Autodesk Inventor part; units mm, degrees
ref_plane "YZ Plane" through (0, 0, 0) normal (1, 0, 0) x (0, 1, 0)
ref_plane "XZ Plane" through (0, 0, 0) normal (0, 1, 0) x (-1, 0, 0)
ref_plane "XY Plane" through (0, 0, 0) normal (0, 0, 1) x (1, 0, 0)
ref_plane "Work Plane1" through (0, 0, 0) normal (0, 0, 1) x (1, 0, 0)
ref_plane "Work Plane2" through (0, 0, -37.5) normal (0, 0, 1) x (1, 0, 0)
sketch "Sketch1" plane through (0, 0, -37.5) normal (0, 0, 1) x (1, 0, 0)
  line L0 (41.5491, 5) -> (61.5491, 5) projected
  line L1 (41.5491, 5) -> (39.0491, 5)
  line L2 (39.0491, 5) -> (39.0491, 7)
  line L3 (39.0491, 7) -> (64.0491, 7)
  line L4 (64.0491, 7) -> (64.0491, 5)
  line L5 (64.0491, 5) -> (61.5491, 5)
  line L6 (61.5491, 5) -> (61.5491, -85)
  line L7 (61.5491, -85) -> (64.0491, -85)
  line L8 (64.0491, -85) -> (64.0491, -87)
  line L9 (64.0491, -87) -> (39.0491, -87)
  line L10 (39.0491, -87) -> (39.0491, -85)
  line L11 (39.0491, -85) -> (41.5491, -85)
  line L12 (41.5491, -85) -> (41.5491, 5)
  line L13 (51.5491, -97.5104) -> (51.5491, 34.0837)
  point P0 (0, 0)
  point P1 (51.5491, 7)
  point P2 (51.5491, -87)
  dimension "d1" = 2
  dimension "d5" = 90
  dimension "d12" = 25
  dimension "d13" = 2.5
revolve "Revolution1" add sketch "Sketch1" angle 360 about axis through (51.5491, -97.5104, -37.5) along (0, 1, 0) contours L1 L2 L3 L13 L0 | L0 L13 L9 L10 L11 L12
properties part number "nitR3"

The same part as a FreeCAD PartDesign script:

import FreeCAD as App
import Part
import Sketcher

doc = App.newDocument("Part")
params = doc.addObject("Spreadsheet::Sheet", "Params")
for row, (alias, value) in enumerate([
    ("sketch1_height", "90 mm"),
    ("sketch1_height2", "2 mm"),
    ("sketch1_width", "2.5 mm"),
    ("sketch1_width2", "12.5 mm"),
    ("revolution_angle", "360 deg"),
], start=1):
    params.set(f"A{row}", alias)
    params.set(f"B{row}", "=" + value)
    params.setAlias(f"B{row}", alias)

body = doc.addObject("PartDesign::Body", "Body")

# Sketch on XY plane
sketch1 = doc.addObject("Sketcher::SketchObject", "Sketch")
body.addObject(sketch1)
sketch1.AttachmentSupport = (doc.XY_Plane, [""])
sketch1.MapMode = "FlatFace"
sketch1.AttachmentOffset = App.Placement(App.Vector(0, 0, -37.5), App.Rotation())
sketch1.addGeometry([
    Part.LineSegment(App.Vector(39.0491, 5, 0), App.Vector(41.5491, 5, 0)),  # 0
    Part.LineSegment(App.Vector(41.5491, 5, 0), App.Vector(41.5491, -85, 0)),  # 1
    Part.LineSegment(App.Vector(41.5491, -85, 0), App.Vector(39.0491, -85, 0)),  # 2
    Part.LineSegment(App.Vector(39.0491, -85, 0), App.Vector(39.0491, -87, 0)),  # 3
    Part.LineSegment(App.Vector(39.0491, -87, 0), App.Vector(51.5491, -87, 0)),  # 4
    Part.LineSegment(App.Vector(51.5491, -87, 0), App.Vector(51.5491, 7, 0)),  # 5
    Part.LineSegment(App.Vector(51.5491, 7, 0), App.Vector(39.0491, 7, 0)),  # 6
    Part.LineSegment(App.Vector(39.0491, 7, 0), App.Vector(39.0491, 5, 0)),  # 7
], False)
sketch1.addGeometry(Part.LineSegment(App.Vector(51.5491, -87, 0), App.Vector(51.5491, 7, 0)), True)  # axis
sketch1.addConstraint([
    Sketcher.Constraint("Coincident", 0, 2, 1, 1),
    Sketcher.Constraint("Coincident", 1, 2, 2, 1),
    Sketcher.Constraint("Coincident", 2, 2, 3, 1),
    Sketcher.Constraint("Coincident", 3, 2, 4, 1),
    Sketcher.Constraint("Coincident", 4, 2, 5, 1),
    Sketcher.Constraint("Coincident", 5, 2, 6, 1),
    Sketcher.Constraint("Coincident", 6, 2, 7, 1),
    Sketcher.Constraint("Coincident", 7, 2, 0, 1),
    Sketcher.Constraint("Horizontal", 0),
    Sketcher.Constraint("Vertical", 1),
    Sketcher.Constraint("Horizontal", 2),
    Sketcher.Constraint("Vertical", 3),
    Sketcher.Constraint("Horizontal", 4),
    Sketcher.Constraint("Vertical", 5),
    Sketcher.Constraint("Horizontal", 6),
    Sketcher.Constraint("Vertical", 7),
    Sketcher.Constraint("Vertical", 8),
    Sketcher.Constraint("Coincident", 8, 1, 4, 2),
    Sketcher.Constraint("Horizontal", 6, 2, 8, 2),
    Sketcher.Constraint("Vertical", 3, 2, 6, 2),
    Sketcher.Constraint("Equal", 3, 7),
    Sketcher.Constraint("DistanceY", 1, 2, 1, 1, 90.0),
    Sketcher.Constraint("DistanceY", 3, 2, 3, 1, 2.0),
    Sketcher.Constraint("DistanceX", 0, 1, 0, 2, 2.5),
    Sketcher.Constraint("DistanceX", 4, 1, 4, 2, 12.5),
    Sketcher.Constraint("DistanceY", -1, 1, 0, 2, 5.0),
    Sketcher.Constraint("DistanceX", -1, 1, 0, 2, 41.549),
])
sketch1.setExpression("Constraints[21]", "Params.sketch1_height")
sketch1.setExpression("Constraints[22]", "Params.sketch1_height2")
sketch1.setExpression("Constraints[23]", "Params.sketch1_width")
sketch1.setExpression("Constraints[24]", "Params.sketch1_width2")
revolution = doc.addObject("PartDesign::Revolution", "Revolution")
body.addObject(revolution)
revolution.Profile = sketch1
revolution.ReferenceAxis = (sketch1, ["Axis0"])
revolution.setExpression("Angle", "Params.revolution_angle")

doc.recompute()
